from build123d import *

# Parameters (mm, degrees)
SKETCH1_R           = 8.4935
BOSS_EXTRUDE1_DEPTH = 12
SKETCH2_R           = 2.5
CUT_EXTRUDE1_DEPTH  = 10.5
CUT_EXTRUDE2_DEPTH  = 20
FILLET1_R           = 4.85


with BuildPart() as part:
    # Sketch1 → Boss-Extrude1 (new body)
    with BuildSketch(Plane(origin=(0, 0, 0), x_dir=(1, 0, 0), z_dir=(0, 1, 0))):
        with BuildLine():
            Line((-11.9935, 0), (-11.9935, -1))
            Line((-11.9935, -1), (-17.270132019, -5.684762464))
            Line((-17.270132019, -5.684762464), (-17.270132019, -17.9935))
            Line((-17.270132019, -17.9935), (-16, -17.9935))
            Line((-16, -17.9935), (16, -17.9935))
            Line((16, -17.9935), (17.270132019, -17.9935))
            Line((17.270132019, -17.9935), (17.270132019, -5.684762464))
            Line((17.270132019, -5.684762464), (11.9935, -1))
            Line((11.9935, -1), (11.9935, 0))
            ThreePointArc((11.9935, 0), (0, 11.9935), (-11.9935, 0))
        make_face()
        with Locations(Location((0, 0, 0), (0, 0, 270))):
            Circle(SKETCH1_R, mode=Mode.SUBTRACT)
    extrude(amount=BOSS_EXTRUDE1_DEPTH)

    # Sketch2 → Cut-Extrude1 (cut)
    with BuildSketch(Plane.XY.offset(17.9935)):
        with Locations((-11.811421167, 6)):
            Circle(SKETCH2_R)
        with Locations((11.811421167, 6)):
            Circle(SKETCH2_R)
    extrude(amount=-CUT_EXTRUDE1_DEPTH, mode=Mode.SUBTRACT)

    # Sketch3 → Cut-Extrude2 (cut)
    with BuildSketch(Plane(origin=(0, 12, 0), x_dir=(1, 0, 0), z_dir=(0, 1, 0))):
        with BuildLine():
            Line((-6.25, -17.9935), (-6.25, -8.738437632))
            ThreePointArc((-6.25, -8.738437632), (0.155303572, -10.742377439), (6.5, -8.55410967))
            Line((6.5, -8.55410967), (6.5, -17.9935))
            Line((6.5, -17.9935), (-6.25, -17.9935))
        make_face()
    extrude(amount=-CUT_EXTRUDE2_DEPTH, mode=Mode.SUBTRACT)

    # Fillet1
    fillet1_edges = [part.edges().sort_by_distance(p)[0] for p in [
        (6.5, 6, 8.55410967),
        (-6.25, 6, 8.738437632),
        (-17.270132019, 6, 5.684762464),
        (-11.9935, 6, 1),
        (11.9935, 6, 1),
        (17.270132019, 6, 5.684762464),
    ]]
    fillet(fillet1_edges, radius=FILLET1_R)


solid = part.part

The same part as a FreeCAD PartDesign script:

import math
import FreeCAD as App
import Part
import Sketcher
Q = App.Units.Quantity


def edges_at(feature, points):
    """Names of the edges that pass closest to the given points."""
    edges = feature.Shape.Edges
    near = lambda p: min(range(len(edges)), key=lambda i: edges[i].distToShape(Part.Vertex(*p))[0])
    return sorted({f"Edge{near(p) + 1}" for p in points})

doc = App.newDocument("Part")
body = doc.addObject("PartDesign::Body", "Body")

# Sketch on XZ plane
sketch1 = body.newObject("Sketcher::SketchObject", "Sketch")
sketch1.AttachmentSupport = (doc.getObject("XZ_Plane"), [""])
sketch1.MapMode = "FlatFace"
sketch1.addGeometry([
    Part.LineSegment(App.Vector(-12, 0, 0), App.Vector(-12, 1, 0)),  # 0
    Part.LineSegment(App.Vector(-12, 1, 0), App.Vector(-17.3, 5.7, 0)),  # 1
    Part.LineSegment(App.Vector(-17.3, 5.7, 0), App.Vector(-17.3, 18, 0)),  # 2
    Part.LineSegment(App.Vector(-17.3, 18, 0), App.Vector(17.3, 18, 0)),  # 3
    Part.LineSegment(App.Vector(17.3, 18, 0), App.Vector(17.3, 5.7, 0)),  # 4
    Part.LineSegment(App.Vector(17.3, 5.7, 0), App.Vector(12, 1, 0)),  # 5
    Part.LineSegment(App.Vector(12, 1, 0), App.Vector(12, 0, 0)),  # 6
    Part.ArcOfCircle(Part.Circle(App.Vector(0, 0, 0), App.Vector(0, 0, 1), 12), math.radians(180), math.radians(360)),  # 7
    Part.Circle(App.Vector(0, 0, 0), App.Vector(0, 0, 1), 8.5),  # 8
], False)
sketch1.addConstraint([
    Sketcher.Constraint("Coincident", 0, 2, 1, 1),
    Sketcher.Constraint("Coincident", 1, 2, 2, 1),
    Sketcher.Constraint("Coincident", 2, 2, 3, 1),
    Sketcher.Constraint("Coincident", 3, 2, 4, 1),
    Sketcher.Constraint("Coincident", 4, 2, 5, 1),
    Sketcher.Constraint("Coincident", 5, 2, 6, 1),
    Sketcher.Constraint("Tangent", 6, 2, 7, 2),
    Sketcher.Constraint("Tangent", 7, 1, 0, 1),
    Sketcher.Constraint("Vertical", 0),
    Sketcher.Constraint("Vertical", 2),
    Sketcher.Constraint("Horizontal", 3),
    Sketcher.Constraint("Vertical", 4),
    Sketcher.Constraint("Vertical", 6),
    Sketcher.Constraint("Coincident", 7, 3, -1, 1),
    Sketcher.Constraint("Coincident", 8, 3, -1, 1),
    Sketcher.Constraint("Symmetric", 1, 2, 4, 2, -2),
    Sketcher.Constraint("Horizontal", 0, 2, 5, 2),
    Sketcher.Constraint("DistanceY", 0, 1, 0, 2, Q("1 mm")),
    Sketcher.Constraint("Diameter", 8, Q("16.987 mm")),
    Sketcher.Constraint("Radius", 7, Q("11.9935 mm")),
    Sketcher.Constraint("DistanceY", -1, 1, 2, 2, Q("17.9935 mm")),
    Sketcher.Constraint("Distance", 1, Q("7.056192 mm")),
    Sketcher.Constraint("DistanceX", 3, 1, 3, 2, Q("34.540264 mm")),
])
pad1 = body.newObject("PartDesign::Pad", "Pad")
pad1.Profile = sketch1
pad1.Length = 12
pad1.Reversed = True

# Sketch on XY plane
sketch2 = body.newObject("Sketcher::SketchObject", "Sketch001")
sketch2.AttachmentSupport = (doc.getObject("XY_Plane"), [""])
sketch2.MapMode = "FlatFace"
sketch2.AttachmentOffset = App.Placement(App.Vector(0, 0, 17.9935), App.Rotation())
sketch2.addGeometry([
    Part.Circle(App.Vector(-11.8, 6, 0), App.Vector(0, 0, 1), 2.5),
    Part.Circle(App.Vector(11.8, 6, 0), App.Vector(0, 0, 1), 2.5),
], False)
sketch2.addConstraint([
    Sketcher.Constraint("Equal", 0, 1),
    Sketcher.Constraint("Symmetric", 0, 3, 1, 3, -2),
    Sketcher.Constraint("Diameter", 0, Q("5 mm")),
    Sketcher.Constraint("DistanceY", -1, 1, 0, 3, Q("6 mm")),
    Sketcher.Constraint("DistanceX", 0, 3, -1, 1, Q("11.811421 mm")),
])
pocket1 = body.newObject("PartDesign::Pocket", "Pocket")
pocket1.Profile = sketch2
pocket1.Length = 10.5

# Sketch on XZ plane
sketch3 = body.newObject("Sketcher::SketchObject", "Sketch002")
sketch3.AttachmentSupport = (doc.getObject("XZ_Plane"), [""])
sketch3.MapMode = "FlatFace"
sketch3.AttachmentOffset = App.Placement(App.Vector(0, 0, -12), App.Rotation())
sketch3.addGeometry([
    Part.LineSegment(App.Vector(-6, 9, 0), App.Vector(-6, 18, 0)),
    Part.LineSegment(App.Vector(-6, 18, 0), App.Vector(6, 18, 0)),
    Part.LineSegment(App.Vector(6, 18, 0), App.Vector(6, 9, 0)),
    Part.ArcOfCircle(Part.Circle(App.Vector(0, 0, 0), App.Vector(0, 0, 1), 11), math.radians(53), math.radians(126)),
], False)
sketch3.addConstraint([
    Sketcher.Constraint("Coincident", 0, 2, 1, 1),
    Sketcher.Constraint("Coincident", 1, 2, 2, 1),
    Sketcher.Constraint("Coincident", 2, 2, 3, 1),
    Sketcher.Constraint("Coincident", 3, 2, 0, 1),
    Sketcher.Constraint("Vertical", 0),
    Sketcher.Constraint("Horizontal", 1),
    Sketcher.Constraint("Vertical", 2),
    Sketcher.Constraint("Coincident", 3, 3, -1, 1),
    Sketcher.Constraint("DistanceX", 1, 1, 1, 2, Q("12.75 mm")),
    Sketcher.Constraint("DistanceX", -1, 1, 1, 2, Q("6.5 mm")),
    Sketcher.Constraint("Radius", 3, Q("10.7435 mm")),
    Sketcher.Constraint("DistanceY", 2, 2, 2, 1, Q("9.43939 mm")),
])
pocket2 = body.newObject("PartDesign::Pocket", "Pocket001")
pocket2.Profile = sketch3
pocket2.Length = 20
pocket2.Reversed = True
doc.recompute()

fillet = body.newObject("PartDesign::Fillet", "Fillet")
fillet.Base = (pocket2, edges_at(pocket2, [
    (6.5, 6, 8.554),
    (-6.25, 6, 8.738),
    (-17.27, 6, 5.685),
    (-11.993, 6, 1),
    (11.993, 6, 1),
    (17.27, 6, 5.685),
]))
fillet.Radius = 4.85

doc.recompute()
